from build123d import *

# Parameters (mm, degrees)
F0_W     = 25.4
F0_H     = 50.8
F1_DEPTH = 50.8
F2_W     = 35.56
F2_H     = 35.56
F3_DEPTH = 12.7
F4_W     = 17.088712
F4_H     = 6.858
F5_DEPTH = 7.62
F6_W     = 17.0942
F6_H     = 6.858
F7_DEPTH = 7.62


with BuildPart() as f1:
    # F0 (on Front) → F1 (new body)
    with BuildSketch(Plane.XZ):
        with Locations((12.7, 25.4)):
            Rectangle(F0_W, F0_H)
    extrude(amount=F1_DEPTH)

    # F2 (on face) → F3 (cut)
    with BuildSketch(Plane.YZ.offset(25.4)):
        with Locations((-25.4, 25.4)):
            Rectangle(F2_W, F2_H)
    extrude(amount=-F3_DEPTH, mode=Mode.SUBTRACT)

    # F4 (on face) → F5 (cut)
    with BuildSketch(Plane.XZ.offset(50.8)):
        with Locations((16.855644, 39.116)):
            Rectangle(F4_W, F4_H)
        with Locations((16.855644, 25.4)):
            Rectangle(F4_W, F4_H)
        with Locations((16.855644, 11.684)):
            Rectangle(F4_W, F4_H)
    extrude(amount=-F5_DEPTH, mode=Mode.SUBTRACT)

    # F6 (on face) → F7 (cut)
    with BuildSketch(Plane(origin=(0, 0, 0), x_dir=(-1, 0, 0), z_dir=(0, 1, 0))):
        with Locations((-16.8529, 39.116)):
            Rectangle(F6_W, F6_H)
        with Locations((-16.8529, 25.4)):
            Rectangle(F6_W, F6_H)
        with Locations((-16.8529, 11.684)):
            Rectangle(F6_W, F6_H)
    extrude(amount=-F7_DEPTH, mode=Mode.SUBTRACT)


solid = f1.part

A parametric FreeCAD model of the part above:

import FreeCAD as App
import Part
import Sketcher
Q = App.Units.Quantity


def add_polygon(sketch, points):
    """Adds a closed chain of lines whose ends are joined by coincident constraints."""
    first, n = sketch.GeometryCount, len(points)
    for a, b in zip(points, points[1:] + points[:1]):
        sketch.addGeometry(Part.LineSegment(App.Vector(*a, 0), App.Vector(*b, 0)), False)
    for i in range(n):
        sketch.addConstraint(Sketcher.Constraint("Coincident", first + i, 2, first + (i + 1) % n, 1))

doc = App.newDocument("Part")
params = doc.addObject("Spreadsheet::Sheet", "Params")
for row, (alias, value) in enumerate([
    ("sketch1_width", "1 in"),
    ("sketch1_height", "2 in"),
    ("pad1_length", "2 in"),
    ("sketch2_width", "1.4 in"),
    ("pocket1_length", "0.5 in"),
    ("sketch3_height", "0.27 in"),
    ("pocket2_length", "0.3 in"),
    ("sketch4_height", "0.27 in"),
    ("sketch4_width", "0.673 in"),
    ("pocket3_length", "0.3 in"),
], start=1):
    params.set(f"A{row}", alias)
    params.set(f"B{row}", "=" + value)
    params.setAlias(f"B{row}", alias)

body = doc.addObject("PartDesign::Body", "Body")

# Sketch on XZ plane
sketch1 = body.newObject("Sketcher::SketchObject", "Sketch")
sketch1.AttachmentSupport = (doc.getObject("XZ_Plane"), [""])
sketch1.MapMode = "FlatFace"
add_polygon(sketch1, [(0, 51), (0, 0), (25, 0), (25, 51)])  # lines 0-3
sketch1.addConstraint(Sketcher.Constraint("Vertical", 0))
sketch1.addConstraint(Sketcher.Constraint("Horizontal", 1))
sketch1.addConstraint(Sketcher.Constraint("Vertical", 2))
sketch1.addConstraint(Sketcher.Constraint("Horizontal", 3))
sketch1.addConstraint(Sketcher.Constraint("Coincident", 0, 2, -1, 1))
sketch1.addConstraint(Sketcher.Constraint("DistanceX", 1, 1, 1, 2, Q("1 in")))
sketch1.addConstraint(Sketcher.Constraint("DistanceY", 0, 2, 0, 1, Q("2 in")))
sketch1.setExpression("Constraints[9]", "Params.sketch1_width")
sketch1.setExpression("Constraints[10]", "Params.sketch1_height")
pad1 = body.newObject("PartDesign::Pad", "Pad")
pad1.Profile = sketch1
pad1.setExpression("Length", "Params.pad1_length")

# Sketch on YZ plane
sketch2 = body.newObject("Sketcher::SketchObject", "Sketch001")
sketch2.AttachmentSupport = (doc.getObject("YZ_Plane"), [""])
sketch2.MapMode = "FlatFace"
sketch2.AttachmentOffset = App.Placement(App.Vector(0, 0, 1 * 25.4), App.Rotation())
add_polygon(sketch2, [(-43, 43), (-43, 8), (-8, 8), (-8, 43)])  # lines 0-3
sketch2.addConstraint(Sketcher.Constraint("Vertical", 0))
sketch2.addConstraint(Sketcher.Constraint("Horizontal", 1))
sketch2.addConstraint(Sketcher.Constraint("Vertical", 2))
sketch2.addConstraint(Sketcher.Constraint("Horizontal", 3))
sketch2.addConstraint(Sketcher.Constraint("Equal", 3, 0))
sketch2.addConstraint(Sketcher.Constraint("DistanceX", 1, 1, 1, 2, Q("1.4 in")))
sketch2.addConstraint(Sketcher.Constraint("DistanceX", 0, 2, -1, 1, Q("1.7 in")))
sketch2.addConstraint(Sketcher.Constraint("DistanceY", -1, 1, 0, 2, Q("0.3 in")))
sketch2.setExpression("Constraints[9]", "Params.sketch2_width")
pocket1 = body.newObject("PartDesign::Pocket", "Pocket")
pocket1.Profile = sketch2
pocket1.setExpression("Length", "Params.pocket1_length")

# Sketch on XZ plane
sketch3 = body.newObject("Sketcher::SketchObject", "Sketch002")
sketch3.AttachmentSupport = (doc.getObject("XZ_Plane"), [""])
sketch3.MapMode = "FlatFace"
sketch3.AttachmentOffset = App.Placement(App.Vector(0, 0, 2 * 25.4), App.Rotation())
add_polygon(sketch3, [(8, 43), (8, 36), (25, 36), (25, 43)])  # lines 0-3
add_polygon(sketch3, [(8, 29), (8, 22), (25, 22), (25, 29)])  # lines 4-7
add_polygon(sketch3, [(8, 15), (8, 8), (25, 8), (25, 15)])  # lines 8-11
sketch3.addConstraint(Sketcher.Constraint("Vertical", 0))
sketch3.addConstraint(Sketcher.Constraint("Horizontal", 1))
sketch3.addConstraint(Sketcher.Constraint("Vertical", 2))
sketch3.addConstraint(Sketcher.Constraint("Horizontal", 3))
sketch3.addConstraint(Sketcher.Constraint("Vertical", 4))
sketch3.addConstraint(Sketcher.Constraint("Horizontal", 5))
sketch3.addConstraint(Sketcher.Constraint("Vertical", 6))
sketch3.addConstraint(Sketcher.Constraint("Horizontal", 7))
sketch3.addConstraint(Sketcher.Constraint("Vertical", 8))
sketch3.addConstraint(Sketcher.Constraint("Horizontal", 9))
sketch3.addConstraint(Sketcher.Constraint("Vertical", 10))
sketch3.addConstraint(Sketcher.Constraint("Horizontal", 11))
sketch3.addConstraint(Sketcher.Constraint("Vertical", 3, 2, 4, 2))
sketch3.addConstraint(Sketcher.Constraint("Vertical", 2, 2, 5, 2))
sketch3.addConstraint(Sketcher.Constraint("Vertical", 7, 2, 8, 2))
sketch3.addConstraint(Sketcher.Constraint("Vertical", 6, 2, 9, 2))
sketch3.addConstraint(Sketcher.Constraint("Equal", 2, 4))
sketch3.addConstraint(Sketcher.Constraint("Equal", 6, 8))
sketch3.addConstraint(Sketcher.Constraint("DistanceX", -1, 1, 1, 2, Q("1 in")))
sketch3.addConstraint(Sketcher.Constraint("DistanceY", 0, 2, 0, 1, Q("0.27 in")))
sketch3.addConstraint(Sketcher.Constraint("DistanceY", 4, 2, 0, 2, Q("0.54 in")))
sketch3.addConstraint(Sketcher.Constraint("DistanceY", 8, 2, 4, 2, Q("0.54 in")))
sketch3.addConstraint(Sketcher.Constraint("DistanceY", -1, 1, 0, 2, Q("1.405 in")))
sketch3.addConstraint(Sketcher.Constraint("DistanceX", 1, 1, 1, 2, 17.088712))
sketch3.setExpression("Constraints[31]", "Params.sketch3_height")
pocket2 = body.newObject("PartDesign::Pocket", "Pocket001")
pocket2.Profile = sketch3
pocket2.setExpression("Length", "Params.pocket2_length")

# Sketch on XZ plane
sketch4 = body.newObject("Sketcher::SketchObject", "Sketch003")
sketch4.AttachmentSupport = (doc.getObject("XZ_Plane"), [""])
sketch4.MapMode = "FlatFace"
add_polygon(sketch4, [(25, 43), (25, 36), (8, 36), (8, 43)])  # lines 0-3
add_polygon(sketch4, [(25, 29), (25, 22), (8, 22), (8, 29)])  # lines 4-7
add_polygon(sketch4, [(25, 15), (25, 8), (8, 8), (8, 15)])  # lines 8-11
sketch4.addConstraint(Sketcher.Constraint("Vertical", 0))
sketch4.addConstraint(Sketcher.Constraint("Horizontal", 1))
sketch4.addConstraint(Sketcher.Constraint("Vertical", 2))
sketch4.addConstraint(Sketcher.Constraint("Horizontal", 3))
sketch4.addConstraint(Sketcher.Constraint("Vertical", 4))
sketch4.addConstraint(Sketcher.Constraint("Horizontal", 5))
sketch4.addConstraint(Sketcher.Constraint("Vertical", 6))
sketch4.addConstraint(Sketcher.Constraint("Horizontal", 7))
sketch4.addConstraint(Sketcher.Constraint("Vertical", 8))
sketch4.addConstraint(Sketcher.Constraint("Horizontal", 9))
sketch4.addConstraint(Sketcher.Constraint("Vertical", 10))
sketch4.addConstraint(Sketcher.Constraint("Horizontal", 11))
sketch4.addConstraint(Sketcher.Constraint("Vertical", 3, 2, 4, 2))
sketch4.addConstraint(Sketcher.Constraint("Vertical", 2, 2, 5, 2))
sketch4.addConstraint(Sketcher.Constraint("Vertical", 7, 2, 8, 2))
sketch4.addConstraint(Sketcher.Constraint("Vertical", 6, 2, 9, 2))
sketch4.addConstraint(Sketcher.Constraint("Equal", 2, 4))
sketch4.addConstraint(Sketcher.Constraint("Equal", 6, 8))
sketch4.addConstraint(Sketcher.Constraint("DistanceX", -1, 1, 0, 2, Q("1 in")))
sketch4.addConstraint(Sketcher.Constraint("DistanceY", 0, 2, 0, 1, Q("0.27 in")))
sketch4.addConstraint(Sketcher.Constraint("DistanceX", 1, 2, 1, 1, Q("0.673 in")))
sketch4.addConstraint(Sketcher.Constraint("DistanceY", 4, 2, 0, 2, Q("0.54 in")))
sketch4.addConstraint(Sketcher.Constraint("DistanceY", 8, 2, 4, 2, Q("0.54 in")))
sketch4.addConstraint(Sketcher.Constraint("DistanceY", -1, 1, 0, 2, Q("1.405 in")))
sketch4.setExpression("Constraints[31]", "Params.sketch4_height")
sketch4.setExpression("Constraints[32]", "Params.sketch4_width")
pocket3 = body.newObject("PartDesign::Pocket", "Pocket002")
pocket3.Profile = sketch4
pocket3.setExpression("Length", "Params.pocket3_length")
pocket3.Reversed = True

doc.recompute()
